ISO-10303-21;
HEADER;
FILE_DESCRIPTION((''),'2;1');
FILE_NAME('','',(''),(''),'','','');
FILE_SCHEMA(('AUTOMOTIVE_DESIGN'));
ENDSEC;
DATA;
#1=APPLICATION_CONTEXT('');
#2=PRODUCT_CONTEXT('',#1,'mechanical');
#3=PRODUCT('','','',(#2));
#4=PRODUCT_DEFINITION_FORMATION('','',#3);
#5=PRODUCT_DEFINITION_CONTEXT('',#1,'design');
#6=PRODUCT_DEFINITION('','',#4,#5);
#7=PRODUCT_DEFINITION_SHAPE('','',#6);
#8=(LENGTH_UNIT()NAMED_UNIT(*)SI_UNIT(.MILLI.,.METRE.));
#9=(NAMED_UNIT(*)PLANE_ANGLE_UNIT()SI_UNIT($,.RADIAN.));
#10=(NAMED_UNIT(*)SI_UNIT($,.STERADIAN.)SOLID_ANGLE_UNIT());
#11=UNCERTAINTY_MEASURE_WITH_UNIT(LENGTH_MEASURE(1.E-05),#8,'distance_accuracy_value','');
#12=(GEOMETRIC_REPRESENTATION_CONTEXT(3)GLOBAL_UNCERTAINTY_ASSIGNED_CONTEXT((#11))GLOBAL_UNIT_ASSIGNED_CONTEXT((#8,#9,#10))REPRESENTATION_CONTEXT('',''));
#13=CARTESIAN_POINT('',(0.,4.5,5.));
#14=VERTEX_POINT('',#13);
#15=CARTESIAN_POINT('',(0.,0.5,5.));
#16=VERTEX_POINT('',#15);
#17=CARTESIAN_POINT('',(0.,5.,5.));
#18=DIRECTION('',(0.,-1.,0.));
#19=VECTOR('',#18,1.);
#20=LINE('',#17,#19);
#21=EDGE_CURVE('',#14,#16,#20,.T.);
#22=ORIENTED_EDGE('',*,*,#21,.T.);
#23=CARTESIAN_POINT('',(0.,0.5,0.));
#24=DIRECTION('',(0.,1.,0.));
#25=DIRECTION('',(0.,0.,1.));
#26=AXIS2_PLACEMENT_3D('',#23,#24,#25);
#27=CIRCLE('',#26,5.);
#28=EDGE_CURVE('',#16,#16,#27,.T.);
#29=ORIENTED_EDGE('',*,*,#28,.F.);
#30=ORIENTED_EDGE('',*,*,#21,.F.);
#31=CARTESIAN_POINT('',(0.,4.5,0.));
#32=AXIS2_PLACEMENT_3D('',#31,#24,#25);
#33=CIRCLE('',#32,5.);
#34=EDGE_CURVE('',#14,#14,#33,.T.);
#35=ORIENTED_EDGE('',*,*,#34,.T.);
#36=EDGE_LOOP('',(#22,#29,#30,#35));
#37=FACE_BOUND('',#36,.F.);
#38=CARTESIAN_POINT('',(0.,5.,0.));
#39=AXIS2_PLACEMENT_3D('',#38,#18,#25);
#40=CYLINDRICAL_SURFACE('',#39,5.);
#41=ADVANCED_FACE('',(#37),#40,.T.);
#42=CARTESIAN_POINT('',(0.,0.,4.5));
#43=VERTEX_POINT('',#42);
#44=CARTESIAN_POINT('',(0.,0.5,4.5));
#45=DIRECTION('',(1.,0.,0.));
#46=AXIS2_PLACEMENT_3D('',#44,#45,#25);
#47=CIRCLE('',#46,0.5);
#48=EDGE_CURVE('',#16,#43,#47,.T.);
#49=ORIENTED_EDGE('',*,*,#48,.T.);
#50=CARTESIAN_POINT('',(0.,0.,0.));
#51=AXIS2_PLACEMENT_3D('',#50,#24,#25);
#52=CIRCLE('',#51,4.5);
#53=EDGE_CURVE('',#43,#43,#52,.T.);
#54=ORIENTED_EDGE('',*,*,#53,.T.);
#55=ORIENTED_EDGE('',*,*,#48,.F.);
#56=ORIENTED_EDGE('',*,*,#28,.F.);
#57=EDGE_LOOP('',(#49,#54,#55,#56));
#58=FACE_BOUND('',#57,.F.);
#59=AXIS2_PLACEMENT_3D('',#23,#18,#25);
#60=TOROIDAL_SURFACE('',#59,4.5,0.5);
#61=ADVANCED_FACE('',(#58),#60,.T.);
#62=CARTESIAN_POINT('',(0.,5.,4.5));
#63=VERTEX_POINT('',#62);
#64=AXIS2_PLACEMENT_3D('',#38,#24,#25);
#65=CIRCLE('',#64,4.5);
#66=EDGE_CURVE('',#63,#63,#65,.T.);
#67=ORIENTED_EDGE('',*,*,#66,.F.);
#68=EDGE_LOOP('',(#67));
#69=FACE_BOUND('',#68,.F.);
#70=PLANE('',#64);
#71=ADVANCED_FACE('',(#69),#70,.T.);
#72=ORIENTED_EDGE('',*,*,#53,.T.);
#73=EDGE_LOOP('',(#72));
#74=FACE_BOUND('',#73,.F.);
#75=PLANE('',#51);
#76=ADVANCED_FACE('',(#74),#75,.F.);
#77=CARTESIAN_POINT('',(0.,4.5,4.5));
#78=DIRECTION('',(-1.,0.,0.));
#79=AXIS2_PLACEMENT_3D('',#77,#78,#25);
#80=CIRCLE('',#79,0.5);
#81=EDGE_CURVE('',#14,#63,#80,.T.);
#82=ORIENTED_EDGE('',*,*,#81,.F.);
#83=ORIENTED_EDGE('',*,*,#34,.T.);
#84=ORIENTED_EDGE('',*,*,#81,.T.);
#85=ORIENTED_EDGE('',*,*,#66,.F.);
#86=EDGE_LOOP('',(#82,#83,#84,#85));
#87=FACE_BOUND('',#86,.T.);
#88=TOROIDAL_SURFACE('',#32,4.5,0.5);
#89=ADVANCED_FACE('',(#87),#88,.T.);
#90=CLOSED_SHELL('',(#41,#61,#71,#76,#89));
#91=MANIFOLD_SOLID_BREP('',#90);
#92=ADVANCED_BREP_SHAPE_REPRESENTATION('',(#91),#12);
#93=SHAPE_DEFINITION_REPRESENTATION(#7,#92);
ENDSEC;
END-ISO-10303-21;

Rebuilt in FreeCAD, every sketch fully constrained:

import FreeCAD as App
import Part
import Sketcher
Q = App.Units.Quantity


def edges_at(feature, points):
    """Names of the edges that pass closest to the given points."""
    edges = feature.Shape.Edges
    near = lambda p: min(range(len(edges)), key=lambda i: edges[i].distToShape(Part.Vertex(*p))[0])
    return sorted({f"Edge{near(p) + 1}" for p in points})

doc = App.newDocument("Part")
body = doc.addObject("PartDesign::Body", "Body")

# Sketch on YZ plane
sketch1 = body.newObject("Sketcher::SketchObject", "Sketch")
sketch1.AttachmentSupport = (doc.getObject("YZ_Plane"), [""])
sketch1.MapMode = "FlatFace"
sketch1.addGeometry(Part.LineSegment(App.Vector(0, 5, 0), App.Vector(0, 0, 0)), False)
sketch1.addGeometry(Part.LineSegment(App.Vector(0, 0, 0), App.Vector(5, 0, 0)), False)
sketch1.addGeometry(Part.LineSegment(App.Vector(5, 0, 0), App.Vector(5, 5, 0)), False)
sketch1.addGeometry(Part.LineSegment(App.Vector(5, 5, 0), App.Vector(0, 5, 0)), False)
sketch1.addConstraint(Sketcher.Constraint("Coincident", 0, 2, 1, 1))
sketch1.addConstraint(Sketcher.Constraint("Coincident", 1, 2, 2, 1))
sketch1.addConstraint(Sketcher.Constraint("Coincident", 2, 2, 3, 1))
sketch1.addConstraint(Sketcher.Constraint("Coincident", 3, 2, 0, 1))
sketch1.addConstraint(Sketcher.Constraint("Vertical", 0))
sketch1.addConstraint(Sketcher.Constraint("Horizontal", 1))
sketch1.addConstraint(Sketcher.Constraint("Vertical", 2))
sketch1.addConstraint(Sketcher.Constraint("Horizontal", 3))
sketch1.addConstraint(Sketcher.Constraint("Coincident", 0, 2, -1, 1))
sketch1.addConstraint(Sketcher.Constraint("Equal", 3, 0))
sketch1.addConstraint(Sketcher.Constraint("DistanceX", 1, 1, 1, 2, Q("5 mm")))
revolution = body.newObject("PartDesign::Revolution", "Revolution")
revolution.Profile = sketch1
revolution.ReferenceAxis = (sketch1, ["H_Axis"])
revolution.Angle = 360
doc.recompute()

fillet = body.newObject("PartDesign::Fillet", "Fillet")
fillet.Base = (revolution, edges_at(revolution, [(0, 5, -5)]))
fillet.Radius = 0.5
doc.recompute()

fillet2 = body.newObject("PartDesign::Fillet", "Fillet001")
fillet2.Base = (fillet, edges_at(fillet, [(0, 0, -5)]))
fillet2.Radius = 0.5

doc.recompute()
